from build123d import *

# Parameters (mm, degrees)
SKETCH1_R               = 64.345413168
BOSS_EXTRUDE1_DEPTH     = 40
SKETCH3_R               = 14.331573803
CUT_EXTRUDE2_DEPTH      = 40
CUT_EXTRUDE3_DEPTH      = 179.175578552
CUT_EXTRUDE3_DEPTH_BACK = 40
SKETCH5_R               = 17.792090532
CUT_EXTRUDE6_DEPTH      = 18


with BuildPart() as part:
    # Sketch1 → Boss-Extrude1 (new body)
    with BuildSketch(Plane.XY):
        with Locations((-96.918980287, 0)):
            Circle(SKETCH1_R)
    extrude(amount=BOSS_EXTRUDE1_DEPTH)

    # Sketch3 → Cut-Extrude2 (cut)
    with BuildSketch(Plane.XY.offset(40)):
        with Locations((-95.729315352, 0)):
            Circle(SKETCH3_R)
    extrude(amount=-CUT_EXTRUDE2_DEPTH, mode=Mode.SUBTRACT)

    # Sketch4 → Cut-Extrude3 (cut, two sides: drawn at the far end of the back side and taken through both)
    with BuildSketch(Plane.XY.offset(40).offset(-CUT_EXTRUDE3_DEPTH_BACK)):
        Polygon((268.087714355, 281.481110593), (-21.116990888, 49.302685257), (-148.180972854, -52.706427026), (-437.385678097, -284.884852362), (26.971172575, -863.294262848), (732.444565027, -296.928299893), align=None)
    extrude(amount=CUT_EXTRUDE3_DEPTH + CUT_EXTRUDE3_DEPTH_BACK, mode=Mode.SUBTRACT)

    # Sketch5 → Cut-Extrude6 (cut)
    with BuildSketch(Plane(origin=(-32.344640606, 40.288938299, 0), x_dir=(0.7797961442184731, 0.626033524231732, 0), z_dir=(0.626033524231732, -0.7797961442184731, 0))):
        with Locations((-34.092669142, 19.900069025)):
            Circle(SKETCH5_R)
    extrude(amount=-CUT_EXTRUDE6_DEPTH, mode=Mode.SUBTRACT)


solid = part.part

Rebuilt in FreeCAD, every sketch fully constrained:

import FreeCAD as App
import Part
import Sketcher
Q = App.Units.Quantity

doc = App.newDocument("Part")
params = doc.addObject("Spreadsheet::Sheet", "Params")
for row, (alias, value) in enumerate([
    ("pad1_length", "40 mm"),
    ("pocket1_length", "40 mm"),
    ("pocket3_length", "18 mm"),
], start=1):
    params.set(f"A{row}", alias)
    params.set(f"B{row}", "=" + value)
    params.setAlias(f"B{row}", alias)

body = doc.addObject("PartDesign::Body", "Body")

# Sketch on XY plane
sketch1 = doc.addObject("Sketcher::SketchObject", "Sketch")
body.addObject(sketch1)
sketch1.AttachmentSupport = (doc.XY_Plane, [""])
sketch1.MapMode = "FlatFace"
sketch1.addGeometry(Part.Circle(App.Vector(-97, 0, 0), App.Vector(0, 0, 1), 64), False)
sketch1.addConstraint(Sketcher.Constraint("PointOnObject", 0, 3, -1))
sketch1.addConstraint(Sketcher.Constraint("Diameter", 0, Q("128.690826 mm")))
sketch1.addConstraint(Sketcher.Constraint("DistanceX", 0, 3, -1, 1, Q("96.91898 mm")))
pad1 = doc.addObject("PartDesign::Pad", "Pad")
body.addObject(pad1)
pad1.Profile = sketch1
pad1.setExpression("Length", "Params.pad1_length")

# Sketch on XY plane
sketch2 = doc.addObject("Sketcher::SketchObject", "Sketch001")
body.addObject(sketch2)
sketch2.AttachmentSupport = (doc.XY_Plane, [""])
sketch2.MapMode = "FlatFace"
sketch2.AttachmentOffset = App.Placement(App.Vector(0, 0, 40), App.Rotation())
sketch2.addGeometry(Part.Circle(App.Vector(-96, 0, 0), App.Vector(0, 0, 1), 14), False)
sketch2.addConstraint(Sketcher.Constraint("PointOnObject", 0, 3, -1))
sketch2.addConstraint(Sketcher.Constraint("Diameter", 0, Q("28.663148 mm")))
sketch2.addConstraint(Sketcher.Constraint("DistanceX", 0, 3, -1, 1, Q("95.729315 mm")))
pocket1 = doc.addObject("PartDesign::Pocket", "Pocket")
body.addObject(pocket1)
pocket1.Profile = sketch2
pocket1.setExpression("Length", "Params.pocket1_length")

# Sketch on XY plane
sketch3 = doc.addObject("Sketcher::SketchObject", "Sketch002")
body.addObject(sketch3)
sketch3.AttachmentSupport = (doc.XY_Plane, [""])
sketch3.MapMode = "FlatFace"
sketch3.AttachmentOffset = App.Placement(App.Vector(0, 0, 40), App.Rotation())
sketch3.addGeometry(Part.LineSegment(App.Vector(268, 281, 0), App.Vector(-21, 49, 0)), False)
sketch3.addGeometry(Part.LineSegment(App.Vector(-21, 49, 0), App.Vector(-148, -53, 0)), False)
sketch3.addGeometry(Part.LineSegment(App.Vector(-148, -53, 0), App.Vector(-437, -285, 0)), False)
sketch3.addGeometry(Part.LineSegment(App.Vector(-437, -285, 0), App.Vector(27, -863, 0)), False)
sketch3.addGeometry(Part.LineSegment(App.Vector(27, -863, 0), App.Vector(732, -297, 0)), False)
sketch3.addGeometry(Part.LineSegment(App.Vector(732, -297, 0), App.Vector(268, 281, 0)), False)
sketch3.addConstraint(Sketcher.Constraint("Coincident", 0, 2, 1, 1))
sketch3.addConstraint(Sketcher.Constraint("Coincident", 1, 2, 2, 1))
sketch3.addConstraint(Sketcher.Constraint("Coincident", 2, 2, 3, 1))
sketch3.addConstraint(Sketcher.Constraint("Coincident", 3, 2, 4, 1))
sketch3.addConstraint(Sketcher.Constraint("Coincident", 4, 2, 5, 1))
sketch3.addConstraint(Sketcher.Constraint("Coincident", 5, 2, 0, 1))
sketch3.addConstraint(Sketcher.Constraint("Parallel", 0, 1))
sketch3.addConstraint(Sketcher.Constraint("Parallel", 1, 2))
sketch3.addConstraint(Sketcher.Constraint("Perpendicular", 2, 3))
sketch3.addConstraint(Sketcher.Constraint("Perpendicular", 3, 4))
sketch3.addConstraint(Sketcher.Constraint("Perpendicular", 4, 5))
sketch3.addConstraint(Sketcher.Constraint("Equal", 0, 2))
sketch3.addConstraint(Sketcher.Constraint("DistanceY", 4, 2, -1, 1, Q("296.9283 mm")))
sketch3.addConstraint(Sketcher.Constraint("Distance", 0, Q("370.872192 mm")))
sketch3.addConstraint(Sketcher.Constraint("Distance", 4, Q("904.689511 mm")))
sketch3.addConstraint(Sketcher.Constraint("DistanceX", 0, 2, -1, 1, Q("21.116991 mm")))
sketch3.addConstraint(Sketcher.Constraint("DistanceX", 2, 2, -1, 1, Q("437.385678 mm")))
sketch3.addConstraint(Sketcher.Constraint("DistanceY", -1, 1, 5, 2, Q("281.481111 mm")))
pocket2 = doc.addObject("PartDesign::Pocket", "Pocket001")
body.addObject(pocket2)
pocket2.Profile = sketch3
pocket2.Type = "ThroughAll"
pocket2.Midplane = True

# Sketch on an angled plane
sketch4 = doc.addObject("Sketcher::SketchObject", "Sketch003")
body.addObject(sketch4)
sketch4.Placement = App.Placement(App.Vector(-32.344641, 40.288938, 0), App.Rotation(App.Vector(0.779796144, 0.626033524, 0), App.Vector(0, 0, 0.999999999), App.Vector(0.626033524, -0.779796144, 0), "ZXY"))
sketch4.addGeometry(Part.Circle(App.Vector(-34, 20, 0), App.Vector(0, 0, 1), 18), False)
sketch4.addConstraint(Sketcher.Constraint("Diameter", 0, Q("35.584181 mm")))
sketch4.addConstraint(Sketcher.Constraint("DistanceX", 0, 3, -1, 1, Q("34.092669 mm")))
sketch4.addConstraint(Sketcher.Constraint("DistanceY", -1, 1, 0, 3, Q("19.900069 mm")))
pocket3 = doc.addObject("PartDesign::Pocket", "Pocket002")
body.addObject(pocket3)
pocket3.Profile = sketch4
pocket3.setExpression("Length", "Params.pocket3_length")

doc.recompute()
